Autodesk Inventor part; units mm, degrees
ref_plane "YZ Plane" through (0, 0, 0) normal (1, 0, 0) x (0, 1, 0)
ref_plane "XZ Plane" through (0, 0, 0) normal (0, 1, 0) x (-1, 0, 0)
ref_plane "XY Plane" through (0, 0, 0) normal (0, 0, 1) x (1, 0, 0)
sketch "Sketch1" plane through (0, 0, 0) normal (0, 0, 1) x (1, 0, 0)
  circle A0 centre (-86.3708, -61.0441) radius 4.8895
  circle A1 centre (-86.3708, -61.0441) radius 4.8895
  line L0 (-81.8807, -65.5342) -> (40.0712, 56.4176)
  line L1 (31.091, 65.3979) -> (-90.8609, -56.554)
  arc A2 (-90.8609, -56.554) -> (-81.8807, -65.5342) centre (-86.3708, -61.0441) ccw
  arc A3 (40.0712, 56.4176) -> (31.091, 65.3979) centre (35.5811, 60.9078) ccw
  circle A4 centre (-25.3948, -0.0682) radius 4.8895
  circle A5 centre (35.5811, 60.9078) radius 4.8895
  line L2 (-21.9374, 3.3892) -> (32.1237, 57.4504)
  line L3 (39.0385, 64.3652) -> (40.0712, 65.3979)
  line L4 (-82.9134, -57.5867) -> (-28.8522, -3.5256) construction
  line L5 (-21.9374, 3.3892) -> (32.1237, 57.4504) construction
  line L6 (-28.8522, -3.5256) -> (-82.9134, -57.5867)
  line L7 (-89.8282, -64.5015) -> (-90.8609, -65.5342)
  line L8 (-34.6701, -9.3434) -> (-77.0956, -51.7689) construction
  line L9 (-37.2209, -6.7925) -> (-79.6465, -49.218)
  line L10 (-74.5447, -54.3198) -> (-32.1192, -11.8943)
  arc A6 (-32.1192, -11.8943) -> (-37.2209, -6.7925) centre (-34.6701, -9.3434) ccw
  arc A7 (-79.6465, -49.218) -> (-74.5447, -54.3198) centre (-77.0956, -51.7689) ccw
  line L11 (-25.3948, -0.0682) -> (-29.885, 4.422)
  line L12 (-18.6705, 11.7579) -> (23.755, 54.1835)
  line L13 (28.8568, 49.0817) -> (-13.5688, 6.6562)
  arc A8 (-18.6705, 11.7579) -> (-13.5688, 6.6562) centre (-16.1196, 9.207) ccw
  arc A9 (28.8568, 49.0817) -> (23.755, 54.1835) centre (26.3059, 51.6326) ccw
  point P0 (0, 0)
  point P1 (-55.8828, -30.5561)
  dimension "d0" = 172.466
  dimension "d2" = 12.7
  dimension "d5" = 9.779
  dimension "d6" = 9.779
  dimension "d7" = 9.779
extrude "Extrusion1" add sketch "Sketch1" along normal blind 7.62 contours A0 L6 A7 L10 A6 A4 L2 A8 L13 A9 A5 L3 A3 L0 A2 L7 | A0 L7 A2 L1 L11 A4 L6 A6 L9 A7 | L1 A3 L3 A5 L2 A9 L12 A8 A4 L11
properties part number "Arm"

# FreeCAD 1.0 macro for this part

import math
import FreeCAD as App
import Part
import Sketcher

V = App.Vector
Q = App.Units.Quantity

doc = App.newDocument("Part")
body = doc.addObject("PartDesign::Body", "Body")

sketch1 = body.newObject("Sketcher::SketchObject", "Sketch")
sketch1.AttachmentSupport = (doc.getObject("XY_Plane"), [""])
sketch1.MapMode = "FlatFace"
sketch1.addGeometry(Part.ArcOfCircle(Part.Circle(V(35.6, 60.9, 0), V(0, 0, 1), 6.4), math.radians(-45), math.radians(135)), False)
sketch1.addGeometry(Part.LineSegment(V(31.1, 65.4, 0), V(-90.9, -56.6, 0)), False)
sketch1.addGeometry(Part.ArcOfCircle(Part.Circle(V(-86.4, -61, 0), V(0, 0, 1), 6.3), math.radians(135), math.radians(315)), False)
sketch1.addGeometry(Part.LineSegment(V(-81.9, -65.5, 0), V(40.1, 56.4, 0)), False)
sketch1.addGeometry(Part.Circle(V(-86.4, -61, 0), V(0, 0, 1), 4.9), False)
sketch1.addGeometry(Part.ArcOfCircle(Part.Circle(V(-77.1, -51.8, 0), V(0, 0, 1), 3.6), math.radians(135), math.radians(315)), False)
sketch1.addGeometry(Part.LineSegment(V(-79.6, -49.2, 0), V(-37.2, -6.8, 0)), False)
sketch1.addGeometry(Part.ArcOfCircle(Part.Circle(V(-34.7, -9.3, 0), V(0, 0, 1), 3.6), math.radians(-45), math.radians(135)), False)
sketch1.addGeometry(Part.LineSegment(V(-32.1, -11.9, 0), V(-74.5, -54.3, 0)), False)
sketch1.addGeometry(Part.Circle(V(-25.4, -0.1, 0), V(0, 0, 1), 4.9), False)
sketch1.addGeometry(Part.ArcOfCircle(Part.Circle(V(-16.1, 9.2, 0), V(0, 0, 1), 3.6), math.radians(135), math.radians(315)), False)
sketch1.addGeometry(Part.LineSegment(V(-18.7, 11.8, 0), V(23.8, 54.2, 0)), False)
sketch1.addGeometry(Part.ArcOfCircle(Part.Circle(V(26.3, 51.6, 0), V(0, 0, 1), 3.6), math.radians(-45), math.radians(135)), False)
sketch1.addGeometry(Part.LineSegment(V(28.9, 49.1, 0), V(-13.6, 6.7, 0)), False)
sketch1.addGeometry(Part.Circle(V(35.6, 60.9, 0), V(0, 0, 1), 4.9), False)
sketch1.addConstraint(Sketcher.Constraint("Tangent", 0, 2, 1, 1))
sketch1.addConstraint(Sketcher.Constraint("Tangent", 1, 2, 2, 1))
sketch1.addConstraint(Sketcher.Constraint("Tangent", 2, 2, 3, 1))
sketch1.addConstraint(Sketcher.Constraint("Tangent", 3, 2, 0, 1))
sketch1.addConstraint(Sketcher.Constraint("Tangent", 5, 1, 6, 1))
sketch1.addConstraint(Sketcher.Constraint("Tangent", 6, 2, 7, 2))
sketch1.addConstraint(Sketcher.Constraint("Tangent", 7, 1, 8, 1))
sketch1.addConstraint(Sketcher.Constraint("Tangent", 8, 2, 5, 2))
sketch1.addConstraint(Sketcher.Constraint("Tangent", 10, 1, 11, 1))
sketch1.addConstraint(Sketcher.Constraint("Tangent", 11, 2, 12, 2))
sketch1.addConstraint(Sketcher.Constraint("Tangent", 12, 1, 13, 1))
sketch1.addConstraint(Sketcher.Constraint("Tangent", 13, 2, 10, 2))
sketch1.addConstraint(Sketcher.Constraint("Coincident", 4, 3, 2, 3))
sketch1.addConstraint(Sketcher.Constraint("Coincident", 14, 3, 0, 3))
sketch1.addConstraint(Sketcher.Constraint("Equal", 0, 2))
sketch1.addConstraint(Sketcher.Constraint("Equal", 5, 7))
sketch1.addConstraint(Sketcher.Constraint("Equal", 4, 9))
sketch1.addConstraint(Sketcher.Constraint("Equal", 7, 10))
sketch1.addConstraint(Sketcher.Constraint("Equal", 10, 12))
sketch1.addConstraint(Sketcher.Constraint("Equal", 9, 14))
sketch1.addConstraint(Sketcher.Constraint("Parallel", 3, 6))
sketch1.addConstraint(Sketcher.Constraint("Parallel", 8, 11))
sketch1.addConstraint(Sketcher.Constraint("Equal", 8, 11))
sketch1.addConstraint(Sketcher.Constraint("Radius", 0, Q("0.25 in")))
sketch1.addConstraint(Sketcher.Constraint("Diameter", 4, Q("0.385 in")))
sketch1.addConstraint(Sketcher.Constraint("Distance", 1, Q("6.79 in")))
sketch1.addConstraint(Sketcher.Constraint("Angle", 1, Q("-135 deg")))
sketch1.addConstraint(Sketcher.Constraint("Radius", 5, 3.6075))
sketch1.addConstraint(Sketcher.Constraint("DistanceY", 2, 3, -1, 1, Q("2.4033 in")))
sketch1.addConstraint(Sketcher.Constraint("DistanceX", 9, 3, -1, 1, Q("0.9998 in")))
sketch1.addConstraint(Sketcher.Constraint("DistanceX", 1, 2, -1, 1, Q("3.5772 in")))
sketch1.addConstraint(Sketcher.Constraint("DistanceX", 5, 1, -1, 1, Q("3.1357 in")))
sketch1.addConstraint(Sketcher.Constraint("DistanceX", 6, 2, -1, 1, Q("1.4654 in")))
sketch1.addConstraint(Sketcher.Constraint("DistanceY", -1, 1, 10, 1, Q("0.4629 in")))
sketch1.addConstraint(Sketcher.Constraint("DistanceX", -1, 1, 12, 1, Q("1.1361 in")))
sketch1.addConstraint(Sketcher.Constraint("DistanceY", 5, 3, 0, 3, Q("4.4361 in")))
sketch1.addConstraint(Sketcher.Constraint("DistanceY", 9, 3, 0, 2, Q("2.5774 in")))
pad1 = body.newObject("PartDesign::Pad", "Pad")
pad1.Profile = sketch1
pad1.Length = Q("0.3 in")

doc.recompute()
